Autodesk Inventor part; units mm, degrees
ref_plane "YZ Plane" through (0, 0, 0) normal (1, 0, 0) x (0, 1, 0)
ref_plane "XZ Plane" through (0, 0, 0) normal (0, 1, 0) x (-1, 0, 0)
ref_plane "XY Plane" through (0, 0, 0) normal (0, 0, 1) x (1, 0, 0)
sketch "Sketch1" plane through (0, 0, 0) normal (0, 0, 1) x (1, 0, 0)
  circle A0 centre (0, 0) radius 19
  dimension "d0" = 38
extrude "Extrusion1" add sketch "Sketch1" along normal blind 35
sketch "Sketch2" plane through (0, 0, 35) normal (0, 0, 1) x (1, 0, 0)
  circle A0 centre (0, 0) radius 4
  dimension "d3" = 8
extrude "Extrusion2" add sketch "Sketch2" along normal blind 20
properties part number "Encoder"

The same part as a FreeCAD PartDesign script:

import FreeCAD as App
import Part
import Sketcher
from FreeCAD import Vector

doc = App.newDocument("Part")
body = doc.addObject("PartDesign::Body", "Body")

# Sketch on XY plane
sketch1 = body.newObject("Sketcher::SketchObject", "Sketch")
sketch1.AttachmentSupport = (doc.getObject("XY_Plane"), [""])
sketch1.MapMode = "FlatFace"
sketch1.addGeometry(Part.Circle(Vector(0, 0, 0), Vector(0, 0, 1), 19), False)
sketch1.addConstraint([
    Sketcher.Constraint("Coincident", 0, 3, -1, 1),
    Sketcher.Constraint("Diameter", 0, 38.0),
])
pad1 = body.newObject("PartDesign::Pad", "Pad")
pad1.Profile = sketch1
pad1.Length = 35

# Sketch on XY plane
sketch2 = body.newObject("Sketcher::SketchObject", "Sketch001")
sketch2.AttachmentSupport = (doc.getObject("XY_Plane"), [""])
sketch2.MapMode = "FlatFace"
sketch2.AttachmentOffset = App.Placement(Vector(0, 0, 35), App.Rotation())
sketch2.addGeometry(Part.Circle(Vector(0, 0, 0), Vector(0, 0, 1), 4), False)
sketch2.addConstraint([
    Sketcher.Constraint("Coincident", 0, 3, -1, 1),
    Sketcher.Constraint("Diameter", 0, 8.0),
])
pad2 = body.newObject("PartDesign::Pad", "Pad001")
pad2.Profile = sketch2
pad2.Length = 20

doc.recompute()
